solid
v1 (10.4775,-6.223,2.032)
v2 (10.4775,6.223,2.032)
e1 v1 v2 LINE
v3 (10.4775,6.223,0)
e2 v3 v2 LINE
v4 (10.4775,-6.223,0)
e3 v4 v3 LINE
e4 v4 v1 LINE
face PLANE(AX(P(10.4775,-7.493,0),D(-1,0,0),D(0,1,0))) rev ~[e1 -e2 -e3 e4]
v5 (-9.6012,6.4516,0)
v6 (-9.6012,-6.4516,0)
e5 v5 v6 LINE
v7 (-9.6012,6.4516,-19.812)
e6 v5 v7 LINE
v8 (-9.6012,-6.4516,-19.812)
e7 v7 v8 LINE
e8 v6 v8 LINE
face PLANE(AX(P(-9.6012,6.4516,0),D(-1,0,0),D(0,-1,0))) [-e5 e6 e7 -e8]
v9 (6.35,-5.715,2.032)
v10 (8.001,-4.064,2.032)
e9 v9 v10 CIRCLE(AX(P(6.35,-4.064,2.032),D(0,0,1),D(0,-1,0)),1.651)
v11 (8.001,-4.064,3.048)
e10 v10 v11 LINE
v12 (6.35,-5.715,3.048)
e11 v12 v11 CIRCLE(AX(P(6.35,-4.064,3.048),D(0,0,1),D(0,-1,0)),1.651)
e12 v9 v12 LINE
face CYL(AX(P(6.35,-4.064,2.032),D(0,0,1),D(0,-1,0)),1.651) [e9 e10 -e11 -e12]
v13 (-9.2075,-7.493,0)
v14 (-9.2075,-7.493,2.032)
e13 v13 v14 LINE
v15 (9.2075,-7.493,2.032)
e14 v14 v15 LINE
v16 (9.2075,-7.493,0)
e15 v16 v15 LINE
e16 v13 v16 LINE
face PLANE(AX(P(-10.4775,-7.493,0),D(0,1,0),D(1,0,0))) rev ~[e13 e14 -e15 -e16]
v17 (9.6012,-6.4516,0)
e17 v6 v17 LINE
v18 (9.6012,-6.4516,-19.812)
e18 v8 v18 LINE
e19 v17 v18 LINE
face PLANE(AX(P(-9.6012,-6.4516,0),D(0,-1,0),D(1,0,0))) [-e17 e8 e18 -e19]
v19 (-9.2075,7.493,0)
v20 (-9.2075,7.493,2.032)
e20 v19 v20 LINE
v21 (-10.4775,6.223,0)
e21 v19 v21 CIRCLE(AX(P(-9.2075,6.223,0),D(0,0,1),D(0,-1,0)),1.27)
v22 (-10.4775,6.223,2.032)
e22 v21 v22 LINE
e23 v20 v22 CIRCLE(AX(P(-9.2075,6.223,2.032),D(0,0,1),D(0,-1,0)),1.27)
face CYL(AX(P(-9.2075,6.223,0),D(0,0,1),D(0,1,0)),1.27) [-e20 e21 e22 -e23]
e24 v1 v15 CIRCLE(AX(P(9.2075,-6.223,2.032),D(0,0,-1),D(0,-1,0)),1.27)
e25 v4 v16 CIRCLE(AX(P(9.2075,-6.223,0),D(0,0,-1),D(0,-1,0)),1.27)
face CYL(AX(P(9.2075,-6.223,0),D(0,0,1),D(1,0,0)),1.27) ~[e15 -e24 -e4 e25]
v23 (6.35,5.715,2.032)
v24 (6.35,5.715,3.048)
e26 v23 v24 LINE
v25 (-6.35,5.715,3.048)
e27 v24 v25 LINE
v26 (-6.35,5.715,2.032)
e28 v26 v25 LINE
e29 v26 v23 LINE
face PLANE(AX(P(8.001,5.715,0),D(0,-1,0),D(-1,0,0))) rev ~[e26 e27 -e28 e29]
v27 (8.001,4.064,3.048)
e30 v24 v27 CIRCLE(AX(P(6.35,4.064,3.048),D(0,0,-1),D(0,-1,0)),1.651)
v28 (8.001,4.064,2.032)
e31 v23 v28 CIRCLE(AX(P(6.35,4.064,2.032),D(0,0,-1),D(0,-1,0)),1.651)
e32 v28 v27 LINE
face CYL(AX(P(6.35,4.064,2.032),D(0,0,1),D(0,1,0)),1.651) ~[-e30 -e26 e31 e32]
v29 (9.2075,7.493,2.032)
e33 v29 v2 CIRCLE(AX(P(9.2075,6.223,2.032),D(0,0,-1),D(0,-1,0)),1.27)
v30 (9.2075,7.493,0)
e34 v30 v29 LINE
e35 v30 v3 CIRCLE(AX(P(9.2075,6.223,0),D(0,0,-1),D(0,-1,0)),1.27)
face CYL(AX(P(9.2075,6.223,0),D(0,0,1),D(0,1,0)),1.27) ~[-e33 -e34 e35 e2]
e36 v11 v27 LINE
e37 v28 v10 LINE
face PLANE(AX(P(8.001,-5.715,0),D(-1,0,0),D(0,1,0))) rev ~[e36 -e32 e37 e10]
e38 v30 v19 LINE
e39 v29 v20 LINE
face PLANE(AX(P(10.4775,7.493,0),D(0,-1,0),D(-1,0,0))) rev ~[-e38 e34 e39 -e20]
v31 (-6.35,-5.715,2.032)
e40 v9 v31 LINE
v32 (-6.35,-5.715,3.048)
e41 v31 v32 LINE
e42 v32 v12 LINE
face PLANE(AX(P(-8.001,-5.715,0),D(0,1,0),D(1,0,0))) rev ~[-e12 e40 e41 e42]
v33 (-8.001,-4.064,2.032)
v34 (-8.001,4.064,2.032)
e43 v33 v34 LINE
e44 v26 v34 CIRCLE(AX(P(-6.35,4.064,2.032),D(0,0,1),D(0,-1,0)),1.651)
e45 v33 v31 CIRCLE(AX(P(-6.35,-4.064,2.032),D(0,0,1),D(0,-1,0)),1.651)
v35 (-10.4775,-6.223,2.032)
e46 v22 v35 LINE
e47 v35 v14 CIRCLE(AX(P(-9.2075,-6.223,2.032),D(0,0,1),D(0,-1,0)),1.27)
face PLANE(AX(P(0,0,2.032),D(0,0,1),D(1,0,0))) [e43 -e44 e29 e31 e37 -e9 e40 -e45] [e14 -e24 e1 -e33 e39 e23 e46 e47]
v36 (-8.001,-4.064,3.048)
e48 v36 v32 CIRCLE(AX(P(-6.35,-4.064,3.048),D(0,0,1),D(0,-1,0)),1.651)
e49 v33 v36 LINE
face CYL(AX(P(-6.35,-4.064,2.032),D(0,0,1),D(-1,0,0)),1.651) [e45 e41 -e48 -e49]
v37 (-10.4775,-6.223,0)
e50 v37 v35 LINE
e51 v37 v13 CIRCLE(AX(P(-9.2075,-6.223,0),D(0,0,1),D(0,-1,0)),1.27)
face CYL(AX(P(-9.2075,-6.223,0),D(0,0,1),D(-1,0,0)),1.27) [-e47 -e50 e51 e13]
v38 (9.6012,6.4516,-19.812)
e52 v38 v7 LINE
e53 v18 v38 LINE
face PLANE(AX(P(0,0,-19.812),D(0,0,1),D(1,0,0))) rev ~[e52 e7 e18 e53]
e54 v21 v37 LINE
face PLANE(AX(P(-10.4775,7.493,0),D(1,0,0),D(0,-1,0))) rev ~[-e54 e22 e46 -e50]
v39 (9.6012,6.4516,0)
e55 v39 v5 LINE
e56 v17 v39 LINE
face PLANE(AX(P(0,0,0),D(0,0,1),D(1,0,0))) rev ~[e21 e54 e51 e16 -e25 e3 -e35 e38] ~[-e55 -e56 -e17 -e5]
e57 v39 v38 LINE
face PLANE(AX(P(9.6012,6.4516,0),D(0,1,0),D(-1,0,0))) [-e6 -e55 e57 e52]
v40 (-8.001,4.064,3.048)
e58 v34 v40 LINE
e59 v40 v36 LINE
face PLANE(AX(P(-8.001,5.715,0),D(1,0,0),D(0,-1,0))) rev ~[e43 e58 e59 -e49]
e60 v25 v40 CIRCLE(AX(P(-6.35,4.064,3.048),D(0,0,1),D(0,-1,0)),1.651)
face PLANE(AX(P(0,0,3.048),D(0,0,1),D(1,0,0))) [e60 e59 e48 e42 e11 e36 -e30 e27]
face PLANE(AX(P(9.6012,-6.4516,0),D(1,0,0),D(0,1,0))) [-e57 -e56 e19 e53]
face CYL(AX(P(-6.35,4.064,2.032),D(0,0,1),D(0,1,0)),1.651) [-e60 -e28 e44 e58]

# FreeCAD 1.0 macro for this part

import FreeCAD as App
import Part
import Sketcher
from FreeCAD import Vector
Q = App.Units.Quantity


def edges_at(feature, points):
    """Names of the edges that pass closest to the given points."""
    edges = feature.Shape.Edges
    near = lambda p: min(range(len(edges)), key=lambda i: edges[i].distToShape(Part.Vertex(*p))[0])
    return sorted({f"Edge{near(p) + 1}" for p in points})

doc = App.newDocument("Part")
body = doc.addObject("PartDesign::Body", "Body")

sketch1 = body.newObject("Sketcher::SketchObject", "Sketch")
sketch1.AttachmentSupport = (doc.getObject("XY_Plane"), [""])
sketch1.MapMode = "FlatFace"
sketch1.addGeometry(Part.LineSegment(Vector(10, -7, 0), Vector(10, 7, 0)), False)
sketch1.addGeometry(Part.LineSegment(Vector(10, 7, 0), Vector(-10, 7, 0)), False)
sketch1.addGeometry(Part.LineSegment(Vector(-10, 7, 0), Vector(-10, -7, 0)), False)
sketch1.addGeometry(Part.LineSegment(Vector(-10, -7, 0), Vector(10, -7, 0)), False)
sketch1.addConstraint(Sketcher.Constraint("Coincident", 0, 2, 1, 1))
sketch1.addConstraint(Sketcher.Constraint("Coincident", 1, 2, 2, 1))
sketch1.addConstraint(Sketcher.Constraint("Coincident", 2, 2, 3, 1))
sketch1.addConstraint(Sketcher.Constraint("Coincident", 3, 2, 0, 1))
sketch1.addConstraint(Sketcher.Constraint("Vertical", 0))
sketch1.addConstraint(Sketcher.Constraint("Horizontal", 1))
sketch1.addConstraint(Sketcher.Constraint("Vertical", 2))
sketch1.addConstraint(Sketcher.Constraint("Horizontal", 3))
sketch1.addConstraint(Sketcher.Constraint("Symmetric", 0, 2, 2, 2, -1, 1))
sketch1.addConstraint(Sketcher.Constraint("DistanceY", 0, 1, 0, 2, Q("0.59 in")))
sketch1.addConstraint(Sketcher.Constraint("DistanceX", 1, 2, 1, 1, Q("0.825 in")))
pad1 = body.newObject("PartDesign::Pad", "Pad")
pad1.Profile = sketch1
pad1.Length = Q("0.08 in")

sketch2 = body.newObject("Sketcher::SketchObject", "Sketch001")
sketch2.AttachmentSupport = (doc.getObject("XY_Plane"), [""])
sketch2.MapMode = "FlatFace"
sketch2.addGeometry(Part.LineSegment(Vector(-10, -6, 0), Vector(10, -6, 0)), False)
sketch2.addGeometry(Part.LineSegment(Vector(10, -6, 0), Vector(10, 6, 0)), False)
sketch2.addGeometry(Part.LineSegment(Vector(10, 6, 0), Vector(-10, 6, 0)), False)
sketch2.addGeometry(Part.LineSegment(Vector(-10, 6, 0), Vector(-10, -6, 0)), False)
sketch2.addConstraint(Sketcher.Constraint("Coincident", 0, 2, 1, 1))
sketch2.addConstraint(Sketcher.Constraint("Coincident", 1, 2, 2, 1))
sketch2.addConstraint(Sketcher.Constraint("Coincident", 2, 2, 3, 1))
sketch2.addConstraint(Sketcher.Constraint("Coincident", 3, 2, 0, 1))
sketch2.addConstraint(Sketcher.Constraint("Horizontal", 0))
sketch2.addConstraint(Sketcher.Constraint("Vertical", 1))
sketch2.addConstraint(Sketcher.Constraint("Horizontal", 2))
sketch2.addConstraint(Sketcher.Constraint("Vertical", 3))
sketch2.addConstraint(Sketcher.Constraint("Symmetric", 0, 2, 2, 2, -1, 1))
sketch2.addConstraint(Sketcher.Constraint("DistanceX", 0, 1, 0, 2, Q("0.756 in")))
sketch2.addConstraint(Sketcher.Constraint("DistanceY", 1, 1, 1, 2, Q("0.508 in")))
pad2 = body.newObject("PartDesign::Pad", "Pad001")
pad2.Profile = sketch2
pad2.Length = Q("0.78 in")
pad2.Reversed = True

sketch3 = body.newObject("Sketcher::SketchObject", "Sketch002")
sketch3.AttachmentSupport = (doc.getObject("XY_Plane"), [""])
sketch3.MapMode = "FlatFace"
sketch3.addGeometry(Part.LineSegment(Vector(-8, -6, 0), Vector(8, -6, 0)), False)
sketch3.addGeometry(Part.LineSegment(Vector(8, -6, 0), Vector(8, 6, 0)), False)
sketch3.addGeometry(Part.LineSegment(Vector(8, 6, 0), Vector(-8, 6, 0)), False)
sketch3.addGeometry(Part.LineSegment(Vector(-8, 6, 0), Vector(-8, -6, 0)), False)
sketch3.addConstraint(Sketcher.Constraint("Coincident", 0, 2, 1, 1))
sketch3.addConstraint(Sketcher.Constraint("Coincident", 1, 2, 2, 1))
sketch3.addConstraint(Sketcher.Constraint("Coincident", 2, 2, 3, 1))
sketch3.addConstraint(Sketcher.Constraint("Coincident", 3, 2, 0, 1))
sketch3.addConstraint(Sketcher.Constraint("Horizontal", 0))
sketch3.addConstraint(Sketcher.Constraint("Vertical", 1))
sketch3.addConstraint(Sketcher.Constraint("Horizontal", 2))
sketch3.addConstraint(Sketcher.Constraint("Vertical", 3))
sketch3.addConstraint(Sketcher.Constraint("Symmetric", 0, 2, 2, 2, -1, 1))
sketch3.addConstraint(Sketcher.Constraint("DistanceX", 0, 1, 0, 2, Q("0.63 in")))
sketch3.addConstraint(Sketcher.Constraint("DistanceY", 1, 1, 1, 2, Q("0.45 in")))
pad3 = body.newObject("PartDesign::Pad", "Pad002")
pad3.Profile = sketch3
pad3.Length = Q("0.12 in")
doc.recompute()

fillet = body.newObject("PartDesign::Fillet", "Fillet")
fillet.Base = (pad3, edges_at(pad3, [
    (-10.477, 7.493, 1.016),
    (-10.477, -7.493, 1.016),
    (10.477, 7.493, 1.016),
    (10.477, -7.493, 1.016),
]))
fillet.Radius = Q("0.05 in")
doc.recompute()

fillet2 = body.newObject("PartDesign::Fillet", "Fillet001")
fillet2.Base = (fillet, edges_at(fillet, [
    (8.001, -5.715, 2.54),
    (8.001, 5.715, 2.54),
    (-8.001, -5.715, 2.54),
    (-8.001, 5.715, 2.54),
]))
fillet2.Radius = Q("0.065 in")

doc.recompute()
